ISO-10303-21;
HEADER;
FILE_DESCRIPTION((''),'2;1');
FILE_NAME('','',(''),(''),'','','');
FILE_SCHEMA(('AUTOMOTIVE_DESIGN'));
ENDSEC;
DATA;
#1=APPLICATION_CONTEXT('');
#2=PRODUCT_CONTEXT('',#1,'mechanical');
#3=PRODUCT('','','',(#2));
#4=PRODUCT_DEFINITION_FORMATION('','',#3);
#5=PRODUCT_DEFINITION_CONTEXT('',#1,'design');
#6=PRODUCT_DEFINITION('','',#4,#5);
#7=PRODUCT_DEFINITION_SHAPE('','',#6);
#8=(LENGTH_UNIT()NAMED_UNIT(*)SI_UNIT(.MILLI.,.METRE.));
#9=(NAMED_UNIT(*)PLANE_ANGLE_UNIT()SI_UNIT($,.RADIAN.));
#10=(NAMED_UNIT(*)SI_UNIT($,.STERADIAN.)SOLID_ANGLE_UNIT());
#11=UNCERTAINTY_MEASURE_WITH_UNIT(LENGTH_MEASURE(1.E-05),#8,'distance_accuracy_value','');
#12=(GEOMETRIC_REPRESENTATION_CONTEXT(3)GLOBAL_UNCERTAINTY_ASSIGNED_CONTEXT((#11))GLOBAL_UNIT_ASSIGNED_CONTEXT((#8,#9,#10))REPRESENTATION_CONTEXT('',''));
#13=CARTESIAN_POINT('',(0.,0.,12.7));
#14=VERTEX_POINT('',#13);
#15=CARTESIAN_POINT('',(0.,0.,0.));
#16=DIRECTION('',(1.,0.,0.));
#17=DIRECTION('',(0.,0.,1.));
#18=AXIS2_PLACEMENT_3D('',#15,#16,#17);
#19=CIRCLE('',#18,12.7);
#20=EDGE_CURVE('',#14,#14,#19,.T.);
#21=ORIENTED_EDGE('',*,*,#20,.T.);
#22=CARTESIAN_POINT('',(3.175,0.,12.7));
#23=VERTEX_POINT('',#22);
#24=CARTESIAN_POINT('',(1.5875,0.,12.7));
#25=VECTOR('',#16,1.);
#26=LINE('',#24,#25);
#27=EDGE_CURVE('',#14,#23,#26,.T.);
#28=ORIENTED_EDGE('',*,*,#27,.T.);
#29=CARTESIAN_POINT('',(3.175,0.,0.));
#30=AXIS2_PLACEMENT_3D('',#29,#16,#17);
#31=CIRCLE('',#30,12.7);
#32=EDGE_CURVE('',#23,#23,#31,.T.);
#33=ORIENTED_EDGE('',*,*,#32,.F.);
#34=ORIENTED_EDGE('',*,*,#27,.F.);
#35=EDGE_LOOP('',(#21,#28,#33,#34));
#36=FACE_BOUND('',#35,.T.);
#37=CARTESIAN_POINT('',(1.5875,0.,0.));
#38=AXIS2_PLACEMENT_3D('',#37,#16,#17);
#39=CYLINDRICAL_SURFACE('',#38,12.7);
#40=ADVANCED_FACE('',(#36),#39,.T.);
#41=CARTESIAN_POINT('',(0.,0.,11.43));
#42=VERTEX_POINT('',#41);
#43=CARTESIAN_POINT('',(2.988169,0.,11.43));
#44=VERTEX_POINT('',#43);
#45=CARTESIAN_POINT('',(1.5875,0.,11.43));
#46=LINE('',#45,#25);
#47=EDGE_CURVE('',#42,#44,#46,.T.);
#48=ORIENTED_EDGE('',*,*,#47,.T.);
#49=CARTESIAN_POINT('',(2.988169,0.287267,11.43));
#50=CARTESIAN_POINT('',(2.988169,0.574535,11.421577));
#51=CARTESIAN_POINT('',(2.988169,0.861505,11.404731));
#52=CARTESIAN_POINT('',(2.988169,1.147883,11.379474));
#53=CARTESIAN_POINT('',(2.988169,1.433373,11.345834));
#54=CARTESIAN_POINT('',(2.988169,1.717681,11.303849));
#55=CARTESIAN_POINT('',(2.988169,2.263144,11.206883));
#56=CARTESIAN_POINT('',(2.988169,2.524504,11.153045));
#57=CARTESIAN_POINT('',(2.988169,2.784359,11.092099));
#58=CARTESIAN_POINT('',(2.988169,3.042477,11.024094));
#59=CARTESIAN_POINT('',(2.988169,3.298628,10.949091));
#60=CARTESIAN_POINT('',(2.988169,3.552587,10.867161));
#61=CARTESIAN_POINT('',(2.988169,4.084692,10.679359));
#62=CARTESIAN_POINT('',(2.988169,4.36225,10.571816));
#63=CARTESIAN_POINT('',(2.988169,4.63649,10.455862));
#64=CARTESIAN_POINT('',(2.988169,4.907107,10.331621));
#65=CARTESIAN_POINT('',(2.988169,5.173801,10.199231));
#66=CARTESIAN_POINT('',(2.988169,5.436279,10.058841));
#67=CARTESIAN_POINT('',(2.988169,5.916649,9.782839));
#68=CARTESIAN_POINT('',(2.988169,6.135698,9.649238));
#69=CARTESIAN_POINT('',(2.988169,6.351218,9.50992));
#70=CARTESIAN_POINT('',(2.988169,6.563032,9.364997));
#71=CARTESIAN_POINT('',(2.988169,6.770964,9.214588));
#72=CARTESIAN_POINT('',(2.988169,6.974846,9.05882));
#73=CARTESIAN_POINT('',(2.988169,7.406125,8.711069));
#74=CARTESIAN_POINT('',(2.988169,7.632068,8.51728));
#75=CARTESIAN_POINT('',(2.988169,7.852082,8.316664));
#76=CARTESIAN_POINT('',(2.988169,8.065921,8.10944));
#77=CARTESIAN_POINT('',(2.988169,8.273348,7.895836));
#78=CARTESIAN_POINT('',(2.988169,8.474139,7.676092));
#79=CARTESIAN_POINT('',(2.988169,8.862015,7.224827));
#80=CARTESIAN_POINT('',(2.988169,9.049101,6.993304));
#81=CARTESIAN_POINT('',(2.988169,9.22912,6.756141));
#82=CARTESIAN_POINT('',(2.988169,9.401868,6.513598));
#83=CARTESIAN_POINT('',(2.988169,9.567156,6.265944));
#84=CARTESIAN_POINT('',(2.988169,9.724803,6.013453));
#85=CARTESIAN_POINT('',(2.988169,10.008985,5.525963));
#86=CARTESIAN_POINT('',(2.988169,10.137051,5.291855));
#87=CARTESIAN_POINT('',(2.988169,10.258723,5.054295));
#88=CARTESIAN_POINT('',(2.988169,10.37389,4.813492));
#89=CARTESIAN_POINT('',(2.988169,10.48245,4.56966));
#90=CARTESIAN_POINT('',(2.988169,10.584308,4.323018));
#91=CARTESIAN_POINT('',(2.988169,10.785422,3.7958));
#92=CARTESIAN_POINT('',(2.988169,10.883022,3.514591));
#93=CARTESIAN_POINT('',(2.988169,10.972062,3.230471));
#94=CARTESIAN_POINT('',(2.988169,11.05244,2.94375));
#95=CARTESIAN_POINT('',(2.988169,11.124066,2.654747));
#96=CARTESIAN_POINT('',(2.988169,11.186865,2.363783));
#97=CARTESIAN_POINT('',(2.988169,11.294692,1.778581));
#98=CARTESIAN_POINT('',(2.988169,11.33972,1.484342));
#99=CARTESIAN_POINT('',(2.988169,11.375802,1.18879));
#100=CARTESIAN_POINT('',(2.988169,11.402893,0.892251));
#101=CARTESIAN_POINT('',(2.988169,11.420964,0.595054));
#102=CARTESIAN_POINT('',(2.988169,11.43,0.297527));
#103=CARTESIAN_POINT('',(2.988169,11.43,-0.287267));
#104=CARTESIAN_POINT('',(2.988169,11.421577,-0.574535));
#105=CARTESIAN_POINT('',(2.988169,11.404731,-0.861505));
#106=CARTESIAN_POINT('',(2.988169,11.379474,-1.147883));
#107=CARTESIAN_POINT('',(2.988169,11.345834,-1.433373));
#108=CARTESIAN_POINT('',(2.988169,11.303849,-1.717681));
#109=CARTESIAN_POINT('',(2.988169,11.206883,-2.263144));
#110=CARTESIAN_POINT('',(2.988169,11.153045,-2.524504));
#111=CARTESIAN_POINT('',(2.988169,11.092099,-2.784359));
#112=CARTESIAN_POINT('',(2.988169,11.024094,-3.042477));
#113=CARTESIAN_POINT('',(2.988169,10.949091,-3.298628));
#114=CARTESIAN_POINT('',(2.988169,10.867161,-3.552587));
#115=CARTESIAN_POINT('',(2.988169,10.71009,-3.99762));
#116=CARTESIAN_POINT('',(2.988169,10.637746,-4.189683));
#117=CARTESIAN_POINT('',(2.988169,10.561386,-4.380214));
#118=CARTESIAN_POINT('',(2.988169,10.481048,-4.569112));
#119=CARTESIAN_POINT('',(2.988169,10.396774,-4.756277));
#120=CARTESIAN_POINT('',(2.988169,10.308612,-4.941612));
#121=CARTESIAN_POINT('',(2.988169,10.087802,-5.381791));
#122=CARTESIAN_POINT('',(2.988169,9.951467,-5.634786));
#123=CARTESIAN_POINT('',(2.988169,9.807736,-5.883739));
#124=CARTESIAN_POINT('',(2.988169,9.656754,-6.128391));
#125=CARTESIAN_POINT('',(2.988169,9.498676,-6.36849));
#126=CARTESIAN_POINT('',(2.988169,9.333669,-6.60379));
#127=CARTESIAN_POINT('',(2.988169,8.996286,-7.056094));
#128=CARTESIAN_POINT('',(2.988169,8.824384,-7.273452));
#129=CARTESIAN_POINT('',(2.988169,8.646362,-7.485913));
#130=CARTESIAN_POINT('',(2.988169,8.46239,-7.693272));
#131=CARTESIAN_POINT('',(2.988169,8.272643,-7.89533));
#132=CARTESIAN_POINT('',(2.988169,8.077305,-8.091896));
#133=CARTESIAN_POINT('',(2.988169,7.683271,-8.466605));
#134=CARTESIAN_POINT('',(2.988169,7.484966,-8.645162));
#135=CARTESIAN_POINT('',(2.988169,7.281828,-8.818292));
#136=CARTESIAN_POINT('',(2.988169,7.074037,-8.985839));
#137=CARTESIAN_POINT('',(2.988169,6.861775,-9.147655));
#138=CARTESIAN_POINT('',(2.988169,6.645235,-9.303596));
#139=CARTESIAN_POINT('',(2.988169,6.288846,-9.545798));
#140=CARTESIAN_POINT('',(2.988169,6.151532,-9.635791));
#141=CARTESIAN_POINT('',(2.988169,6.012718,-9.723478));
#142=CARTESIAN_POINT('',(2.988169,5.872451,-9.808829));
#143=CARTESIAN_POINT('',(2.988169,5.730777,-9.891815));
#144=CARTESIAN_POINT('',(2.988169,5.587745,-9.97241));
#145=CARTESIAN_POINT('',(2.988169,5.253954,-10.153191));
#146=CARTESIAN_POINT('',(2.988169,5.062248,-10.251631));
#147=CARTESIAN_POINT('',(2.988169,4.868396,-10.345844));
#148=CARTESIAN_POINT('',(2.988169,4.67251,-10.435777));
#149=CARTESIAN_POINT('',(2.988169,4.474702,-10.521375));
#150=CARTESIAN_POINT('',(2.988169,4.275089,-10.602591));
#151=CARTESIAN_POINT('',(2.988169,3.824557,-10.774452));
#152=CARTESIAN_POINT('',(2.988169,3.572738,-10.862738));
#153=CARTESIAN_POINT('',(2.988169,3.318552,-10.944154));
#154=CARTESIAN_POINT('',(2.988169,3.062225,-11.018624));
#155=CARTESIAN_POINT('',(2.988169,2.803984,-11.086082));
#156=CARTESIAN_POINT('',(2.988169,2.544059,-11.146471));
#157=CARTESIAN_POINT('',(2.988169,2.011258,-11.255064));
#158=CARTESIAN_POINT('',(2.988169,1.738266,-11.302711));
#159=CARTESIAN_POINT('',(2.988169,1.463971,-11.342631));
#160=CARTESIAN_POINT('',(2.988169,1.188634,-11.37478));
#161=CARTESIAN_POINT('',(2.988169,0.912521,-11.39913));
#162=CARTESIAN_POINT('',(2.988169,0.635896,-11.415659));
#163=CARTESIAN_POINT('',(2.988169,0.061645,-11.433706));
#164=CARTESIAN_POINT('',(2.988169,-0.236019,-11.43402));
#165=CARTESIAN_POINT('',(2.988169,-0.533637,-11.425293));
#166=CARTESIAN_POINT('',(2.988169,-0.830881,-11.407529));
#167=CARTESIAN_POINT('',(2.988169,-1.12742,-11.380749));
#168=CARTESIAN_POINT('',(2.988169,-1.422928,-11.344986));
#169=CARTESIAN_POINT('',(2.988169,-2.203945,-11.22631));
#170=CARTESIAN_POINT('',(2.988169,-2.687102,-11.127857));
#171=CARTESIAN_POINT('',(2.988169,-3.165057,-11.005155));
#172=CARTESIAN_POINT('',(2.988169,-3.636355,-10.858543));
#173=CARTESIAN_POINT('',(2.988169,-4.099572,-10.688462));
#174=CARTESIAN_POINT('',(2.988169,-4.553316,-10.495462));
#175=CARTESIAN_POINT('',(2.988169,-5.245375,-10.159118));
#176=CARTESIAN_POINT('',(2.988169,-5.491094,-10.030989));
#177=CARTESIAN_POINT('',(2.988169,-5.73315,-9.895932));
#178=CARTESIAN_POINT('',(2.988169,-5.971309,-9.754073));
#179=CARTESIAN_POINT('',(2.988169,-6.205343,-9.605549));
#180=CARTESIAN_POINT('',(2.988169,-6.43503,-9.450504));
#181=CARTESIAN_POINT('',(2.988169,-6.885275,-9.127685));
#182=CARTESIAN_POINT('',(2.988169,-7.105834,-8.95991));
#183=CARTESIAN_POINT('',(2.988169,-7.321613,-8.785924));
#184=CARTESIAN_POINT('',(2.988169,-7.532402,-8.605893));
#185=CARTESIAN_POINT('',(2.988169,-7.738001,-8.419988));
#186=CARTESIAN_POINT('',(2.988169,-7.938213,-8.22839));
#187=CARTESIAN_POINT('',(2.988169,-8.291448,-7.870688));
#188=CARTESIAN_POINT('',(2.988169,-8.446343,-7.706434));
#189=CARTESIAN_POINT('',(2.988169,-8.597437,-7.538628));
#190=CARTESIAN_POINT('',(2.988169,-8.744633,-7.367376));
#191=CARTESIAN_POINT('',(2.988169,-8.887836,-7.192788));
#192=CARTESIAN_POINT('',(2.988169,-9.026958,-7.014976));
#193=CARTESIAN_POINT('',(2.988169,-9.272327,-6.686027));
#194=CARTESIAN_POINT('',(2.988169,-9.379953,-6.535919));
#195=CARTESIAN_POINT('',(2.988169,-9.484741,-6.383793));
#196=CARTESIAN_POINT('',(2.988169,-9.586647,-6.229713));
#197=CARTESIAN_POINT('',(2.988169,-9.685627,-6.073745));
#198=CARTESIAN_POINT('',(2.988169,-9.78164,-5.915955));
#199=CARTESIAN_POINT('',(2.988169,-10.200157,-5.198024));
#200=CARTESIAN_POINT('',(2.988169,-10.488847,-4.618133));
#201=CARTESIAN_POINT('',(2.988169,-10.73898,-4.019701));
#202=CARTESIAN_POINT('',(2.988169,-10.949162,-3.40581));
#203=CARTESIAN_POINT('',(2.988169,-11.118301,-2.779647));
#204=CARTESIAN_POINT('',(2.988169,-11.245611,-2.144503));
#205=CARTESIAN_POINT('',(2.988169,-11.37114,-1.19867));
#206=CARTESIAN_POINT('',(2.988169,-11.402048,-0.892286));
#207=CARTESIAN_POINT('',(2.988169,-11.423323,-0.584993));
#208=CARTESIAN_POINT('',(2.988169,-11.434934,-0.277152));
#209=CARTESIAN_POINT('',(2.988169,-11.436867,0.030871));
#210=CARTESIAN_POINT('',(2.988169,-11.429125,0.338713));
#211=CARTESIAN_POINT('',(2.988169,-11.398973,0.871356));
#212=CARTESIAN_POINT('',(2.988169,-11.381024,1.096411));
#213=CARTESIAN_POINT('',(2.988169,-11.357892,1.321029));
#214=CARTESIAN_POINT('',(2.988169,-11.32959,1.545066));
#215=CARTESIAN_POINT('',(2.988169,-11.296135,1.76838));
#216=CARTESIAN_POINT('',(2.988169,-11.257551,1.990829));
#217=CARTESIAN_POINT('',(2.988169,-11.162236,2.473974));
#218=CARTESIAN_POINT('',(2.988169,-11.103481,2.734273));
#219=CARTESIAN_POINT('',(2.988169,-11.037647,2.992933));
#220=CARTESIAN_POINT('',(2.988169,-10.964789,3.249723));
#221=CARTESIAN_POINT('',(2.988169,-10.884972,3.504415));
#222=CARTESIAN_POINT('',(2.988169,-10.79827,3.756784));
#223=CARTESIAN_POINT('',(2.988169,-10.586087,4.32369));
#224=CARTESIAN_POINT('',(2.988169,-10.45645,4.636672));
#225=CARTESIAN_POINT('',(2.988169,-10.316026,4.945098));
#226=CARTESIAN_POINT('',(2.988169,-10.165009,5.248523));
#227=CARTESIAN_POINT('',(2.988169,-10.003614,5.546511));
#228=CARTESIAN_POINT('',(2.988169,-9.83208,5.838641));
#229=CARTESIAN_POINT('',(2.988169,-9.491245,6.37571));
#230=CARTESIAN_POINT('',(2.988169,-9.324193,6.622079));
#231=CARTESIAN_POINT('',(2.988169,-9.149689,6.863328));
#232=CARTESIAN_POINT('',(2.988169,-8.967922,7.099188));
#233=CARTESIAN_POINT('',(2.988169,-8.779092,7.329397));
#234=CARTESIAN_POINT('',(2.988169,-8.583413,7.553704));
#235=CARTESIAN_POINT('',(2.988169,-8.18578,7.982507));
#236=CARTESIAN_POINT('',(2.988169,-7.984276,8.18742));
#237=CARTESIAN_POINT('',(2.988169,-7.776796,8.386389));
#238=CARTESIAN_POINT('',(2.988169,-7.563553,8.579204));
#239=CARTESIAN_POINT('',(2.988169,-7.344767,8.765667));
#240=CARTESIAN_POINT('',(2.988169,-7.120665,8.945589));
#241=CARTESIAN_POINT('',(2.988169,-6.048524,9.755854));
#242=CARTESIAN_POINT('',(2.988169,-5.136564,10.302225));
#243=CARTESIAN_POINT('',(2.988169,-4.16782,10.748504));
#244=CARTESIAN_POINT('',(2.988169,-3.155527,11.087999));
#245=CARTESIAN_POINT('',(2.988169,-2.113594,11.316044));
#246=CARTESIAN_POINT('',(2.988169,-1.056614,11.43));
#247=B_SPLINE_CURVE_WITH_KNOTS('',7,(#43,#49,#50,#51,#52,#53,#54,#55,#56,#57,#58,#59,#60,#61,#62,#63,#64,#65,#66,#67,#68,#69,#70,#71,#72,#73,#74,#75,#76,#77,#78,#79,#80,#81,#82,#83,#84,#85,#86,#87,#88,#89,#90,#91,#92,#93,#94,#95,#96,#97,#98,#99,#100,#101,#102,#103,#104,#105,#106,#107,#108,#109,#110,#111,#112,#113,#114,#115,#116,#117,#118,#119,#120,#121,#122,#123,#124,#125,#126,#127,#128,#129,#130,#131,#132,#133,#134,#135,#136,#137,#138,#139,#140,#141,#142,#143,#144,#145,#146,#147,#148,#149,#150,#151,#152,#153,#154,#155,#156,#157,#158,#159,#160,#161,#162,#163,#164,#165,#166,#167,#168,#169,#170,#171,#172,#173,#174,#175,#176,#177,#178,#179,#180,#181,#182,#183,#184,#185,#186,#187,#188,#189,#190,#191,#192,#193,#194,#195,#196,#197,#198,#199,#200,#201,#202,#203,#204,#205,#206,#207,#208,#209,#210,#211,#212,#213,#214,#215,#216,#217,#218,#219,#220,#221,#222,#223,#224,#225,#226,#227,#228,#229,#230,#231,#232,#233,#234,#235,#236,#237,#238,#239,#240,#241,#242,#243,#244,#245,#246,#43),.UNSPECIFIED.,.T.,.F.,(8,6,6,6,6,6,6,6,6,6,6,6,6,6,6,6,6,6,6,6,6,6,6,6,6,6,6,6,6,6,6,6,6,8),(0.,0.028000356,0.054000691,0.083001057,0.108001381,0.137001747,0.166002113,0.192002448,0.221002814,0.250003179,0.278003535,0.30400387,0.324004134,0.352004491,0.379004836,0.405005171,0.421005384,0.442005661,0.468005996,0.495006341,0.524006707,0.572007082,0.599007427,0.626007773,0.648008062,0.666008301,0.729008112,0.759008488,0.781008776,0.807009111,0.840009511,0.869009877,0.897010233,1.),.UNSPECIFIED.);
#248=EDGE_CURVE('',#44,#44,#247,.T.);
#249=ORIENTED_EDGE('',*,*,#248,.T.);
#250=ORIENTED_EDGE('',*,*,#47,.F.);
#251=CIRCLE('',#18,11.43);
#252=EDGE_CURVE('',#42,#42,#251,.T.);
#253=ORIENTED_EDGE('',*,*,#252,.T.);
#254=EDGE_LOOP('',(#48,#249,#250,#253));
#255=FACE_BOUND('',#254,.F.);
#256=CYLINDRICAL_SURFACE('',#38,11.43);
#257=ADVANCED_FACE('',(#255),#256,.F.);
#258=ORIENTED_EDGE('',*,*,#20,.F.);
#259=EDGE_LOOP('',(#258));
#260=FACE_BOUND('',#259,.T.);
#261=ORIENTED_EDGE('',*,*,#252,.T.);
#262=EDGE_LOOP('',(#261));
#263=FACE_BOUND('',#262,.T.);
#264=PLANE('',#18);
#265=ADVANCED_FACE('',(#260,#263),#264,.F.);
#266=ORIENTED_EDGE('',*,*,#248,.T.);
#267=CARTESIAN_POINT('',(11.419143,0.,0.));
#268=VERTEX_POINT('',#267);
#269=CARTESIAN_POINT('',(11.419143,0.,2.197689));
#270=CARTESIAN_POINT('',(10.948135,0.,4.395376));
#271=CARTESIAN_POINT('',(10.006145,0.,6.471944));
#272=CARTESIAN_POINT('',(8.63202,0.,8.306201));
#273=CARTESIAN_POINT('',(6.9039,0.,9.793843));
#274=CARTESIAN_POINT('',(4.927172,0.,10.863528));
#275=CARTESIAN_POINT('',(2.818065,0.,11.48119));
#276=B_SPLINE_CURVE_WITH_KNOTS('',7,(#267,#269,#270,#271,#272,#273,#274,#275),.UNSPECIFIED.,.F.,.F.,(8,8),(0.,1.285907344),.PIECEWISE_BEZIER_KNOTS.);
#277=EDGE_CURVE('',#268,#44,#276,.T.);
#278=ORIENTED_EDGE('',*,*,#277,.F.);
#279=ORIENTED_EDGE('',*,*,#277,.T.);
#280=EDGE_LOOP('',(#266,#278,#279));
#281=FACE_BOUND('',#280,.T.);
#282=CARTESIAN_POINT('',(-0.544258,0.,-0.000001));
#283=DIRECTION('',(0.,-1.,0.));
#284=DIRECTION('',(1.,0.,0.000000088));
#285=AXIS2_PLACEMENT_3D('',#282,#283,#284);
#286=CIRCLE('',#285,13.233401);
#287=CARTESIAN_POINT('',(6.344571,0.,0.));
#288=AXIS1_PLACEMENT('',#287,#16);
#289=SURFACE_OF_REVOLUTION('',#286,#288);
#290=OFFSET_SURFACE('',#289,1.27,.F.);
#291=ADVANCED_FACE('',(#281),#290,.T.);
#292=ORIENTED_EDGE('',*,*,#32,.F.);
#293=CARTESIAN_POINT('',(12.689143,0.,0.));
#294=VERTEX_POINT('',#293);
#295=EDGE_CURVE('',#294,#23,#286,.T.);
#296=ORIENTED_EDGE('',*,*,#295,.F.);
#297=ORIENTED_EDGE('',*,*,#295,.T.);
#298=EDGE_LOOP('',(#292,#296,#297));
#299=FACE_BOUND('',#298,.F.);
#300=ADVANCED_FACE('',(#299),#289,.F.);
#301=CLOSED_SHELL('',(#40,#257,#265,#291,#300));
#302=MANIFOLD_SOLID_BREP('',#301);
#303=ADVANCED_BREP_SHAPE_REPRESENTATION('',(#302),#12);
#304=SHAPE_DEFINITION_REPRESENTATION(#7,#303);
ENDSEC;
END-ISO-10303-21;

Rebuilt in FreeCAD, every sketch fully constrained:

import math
import FreeCAD as App
import Part
import Sketcher
Q = App.Units.Quantity


def faces_at(feature, points):
    """Names of the faces that lie closest to the given points."""
    faces = feature.Shape.Faces
    near = lambda p: min(range(len(faces)), key=lambda i: faces[i].distToShape(Part.Vertex(*p))[0])
    return sorted({f"Face{near(p) + 1}" for p in points})

doc = App.newDocument("Part")
body = doc.addObject("PartDesign::Body", "Body")

# Sketch on XZ plane
sketch1 = body.newObject("Sketcher::SketchObject", "Sketch")
sketch1.AttachmentSupport = (doc.getObject("XZ_Plane"), [""])
sketch1.MapMode = "FlatFace"
sketch1.addGeometry([
    Part.LineSegment(App.Vector(0, 12.7, 0), App.Vector(0, 0, 0)),
    Part.LineSegment(App.Vector(0, 0, 0), App.Vector(12.7, 0, 0)),
    Part.ArcOfCircle(Part.Circle(App.Vector(-0.5, 0, 0), App.Vector(0, 0, 1), 13.2), math.radians(0), math.radians(74)),
    Part.LineSegment(App.Vector(3.2, 12.7, 0), App.Vector(0, 12.7, 0)),
], False)
sketch1.addConstraint([
    Sketcher.Constraint("Coincident", 0, 2, 1, 1),
    Sketcher.Constraint("Coincident", 1, 2, 2, 1),
    Sketcher.Constraint("Coincident", 2, 2, 3, 1),
    Sketcher.Constraint("Coincident", 3, 2, 0, 1),
    Sketcher.Constraint("Vertical", 0),
    Sketcher.Constraint("Horizontal", 1),
    Sketcher.Constraint("Horizontal", 3),
    Sketcher.Constraint("Coincident", 0, 2, -1, 1),
    Sketcher.Constraint("PointOnObject", 2, 3, -1),
    Sketcher.Constraint("DistanceY", 0, 2, 0, 1, Q("0.5 in")),
    Sketcher.Constraint("Radius", 2, Q("0.5210001 in")),
    Sketcher.Constraint("DistanceX", 3, 2, 3, 1, Q("0.125 in")),
])
revolution = body.newObject("PartDesign::Revolution", "Revolution")
revolution.Profile = sketch1
revolution.ReferenceAxis = (sketch1, ["H_Axis"])
revolution.Angle = 360
doc.recompute()

thickness = body.newObject("PartDesign::Thickness", "Thickness")
thickness.Base = (revolution, faces_at(revolution, [(0, 0, 0)]))
thickness.Value = Q("0.05 in")
thickness.Reversed = True
thickness.Join = "Arc"

doc.recompute()
